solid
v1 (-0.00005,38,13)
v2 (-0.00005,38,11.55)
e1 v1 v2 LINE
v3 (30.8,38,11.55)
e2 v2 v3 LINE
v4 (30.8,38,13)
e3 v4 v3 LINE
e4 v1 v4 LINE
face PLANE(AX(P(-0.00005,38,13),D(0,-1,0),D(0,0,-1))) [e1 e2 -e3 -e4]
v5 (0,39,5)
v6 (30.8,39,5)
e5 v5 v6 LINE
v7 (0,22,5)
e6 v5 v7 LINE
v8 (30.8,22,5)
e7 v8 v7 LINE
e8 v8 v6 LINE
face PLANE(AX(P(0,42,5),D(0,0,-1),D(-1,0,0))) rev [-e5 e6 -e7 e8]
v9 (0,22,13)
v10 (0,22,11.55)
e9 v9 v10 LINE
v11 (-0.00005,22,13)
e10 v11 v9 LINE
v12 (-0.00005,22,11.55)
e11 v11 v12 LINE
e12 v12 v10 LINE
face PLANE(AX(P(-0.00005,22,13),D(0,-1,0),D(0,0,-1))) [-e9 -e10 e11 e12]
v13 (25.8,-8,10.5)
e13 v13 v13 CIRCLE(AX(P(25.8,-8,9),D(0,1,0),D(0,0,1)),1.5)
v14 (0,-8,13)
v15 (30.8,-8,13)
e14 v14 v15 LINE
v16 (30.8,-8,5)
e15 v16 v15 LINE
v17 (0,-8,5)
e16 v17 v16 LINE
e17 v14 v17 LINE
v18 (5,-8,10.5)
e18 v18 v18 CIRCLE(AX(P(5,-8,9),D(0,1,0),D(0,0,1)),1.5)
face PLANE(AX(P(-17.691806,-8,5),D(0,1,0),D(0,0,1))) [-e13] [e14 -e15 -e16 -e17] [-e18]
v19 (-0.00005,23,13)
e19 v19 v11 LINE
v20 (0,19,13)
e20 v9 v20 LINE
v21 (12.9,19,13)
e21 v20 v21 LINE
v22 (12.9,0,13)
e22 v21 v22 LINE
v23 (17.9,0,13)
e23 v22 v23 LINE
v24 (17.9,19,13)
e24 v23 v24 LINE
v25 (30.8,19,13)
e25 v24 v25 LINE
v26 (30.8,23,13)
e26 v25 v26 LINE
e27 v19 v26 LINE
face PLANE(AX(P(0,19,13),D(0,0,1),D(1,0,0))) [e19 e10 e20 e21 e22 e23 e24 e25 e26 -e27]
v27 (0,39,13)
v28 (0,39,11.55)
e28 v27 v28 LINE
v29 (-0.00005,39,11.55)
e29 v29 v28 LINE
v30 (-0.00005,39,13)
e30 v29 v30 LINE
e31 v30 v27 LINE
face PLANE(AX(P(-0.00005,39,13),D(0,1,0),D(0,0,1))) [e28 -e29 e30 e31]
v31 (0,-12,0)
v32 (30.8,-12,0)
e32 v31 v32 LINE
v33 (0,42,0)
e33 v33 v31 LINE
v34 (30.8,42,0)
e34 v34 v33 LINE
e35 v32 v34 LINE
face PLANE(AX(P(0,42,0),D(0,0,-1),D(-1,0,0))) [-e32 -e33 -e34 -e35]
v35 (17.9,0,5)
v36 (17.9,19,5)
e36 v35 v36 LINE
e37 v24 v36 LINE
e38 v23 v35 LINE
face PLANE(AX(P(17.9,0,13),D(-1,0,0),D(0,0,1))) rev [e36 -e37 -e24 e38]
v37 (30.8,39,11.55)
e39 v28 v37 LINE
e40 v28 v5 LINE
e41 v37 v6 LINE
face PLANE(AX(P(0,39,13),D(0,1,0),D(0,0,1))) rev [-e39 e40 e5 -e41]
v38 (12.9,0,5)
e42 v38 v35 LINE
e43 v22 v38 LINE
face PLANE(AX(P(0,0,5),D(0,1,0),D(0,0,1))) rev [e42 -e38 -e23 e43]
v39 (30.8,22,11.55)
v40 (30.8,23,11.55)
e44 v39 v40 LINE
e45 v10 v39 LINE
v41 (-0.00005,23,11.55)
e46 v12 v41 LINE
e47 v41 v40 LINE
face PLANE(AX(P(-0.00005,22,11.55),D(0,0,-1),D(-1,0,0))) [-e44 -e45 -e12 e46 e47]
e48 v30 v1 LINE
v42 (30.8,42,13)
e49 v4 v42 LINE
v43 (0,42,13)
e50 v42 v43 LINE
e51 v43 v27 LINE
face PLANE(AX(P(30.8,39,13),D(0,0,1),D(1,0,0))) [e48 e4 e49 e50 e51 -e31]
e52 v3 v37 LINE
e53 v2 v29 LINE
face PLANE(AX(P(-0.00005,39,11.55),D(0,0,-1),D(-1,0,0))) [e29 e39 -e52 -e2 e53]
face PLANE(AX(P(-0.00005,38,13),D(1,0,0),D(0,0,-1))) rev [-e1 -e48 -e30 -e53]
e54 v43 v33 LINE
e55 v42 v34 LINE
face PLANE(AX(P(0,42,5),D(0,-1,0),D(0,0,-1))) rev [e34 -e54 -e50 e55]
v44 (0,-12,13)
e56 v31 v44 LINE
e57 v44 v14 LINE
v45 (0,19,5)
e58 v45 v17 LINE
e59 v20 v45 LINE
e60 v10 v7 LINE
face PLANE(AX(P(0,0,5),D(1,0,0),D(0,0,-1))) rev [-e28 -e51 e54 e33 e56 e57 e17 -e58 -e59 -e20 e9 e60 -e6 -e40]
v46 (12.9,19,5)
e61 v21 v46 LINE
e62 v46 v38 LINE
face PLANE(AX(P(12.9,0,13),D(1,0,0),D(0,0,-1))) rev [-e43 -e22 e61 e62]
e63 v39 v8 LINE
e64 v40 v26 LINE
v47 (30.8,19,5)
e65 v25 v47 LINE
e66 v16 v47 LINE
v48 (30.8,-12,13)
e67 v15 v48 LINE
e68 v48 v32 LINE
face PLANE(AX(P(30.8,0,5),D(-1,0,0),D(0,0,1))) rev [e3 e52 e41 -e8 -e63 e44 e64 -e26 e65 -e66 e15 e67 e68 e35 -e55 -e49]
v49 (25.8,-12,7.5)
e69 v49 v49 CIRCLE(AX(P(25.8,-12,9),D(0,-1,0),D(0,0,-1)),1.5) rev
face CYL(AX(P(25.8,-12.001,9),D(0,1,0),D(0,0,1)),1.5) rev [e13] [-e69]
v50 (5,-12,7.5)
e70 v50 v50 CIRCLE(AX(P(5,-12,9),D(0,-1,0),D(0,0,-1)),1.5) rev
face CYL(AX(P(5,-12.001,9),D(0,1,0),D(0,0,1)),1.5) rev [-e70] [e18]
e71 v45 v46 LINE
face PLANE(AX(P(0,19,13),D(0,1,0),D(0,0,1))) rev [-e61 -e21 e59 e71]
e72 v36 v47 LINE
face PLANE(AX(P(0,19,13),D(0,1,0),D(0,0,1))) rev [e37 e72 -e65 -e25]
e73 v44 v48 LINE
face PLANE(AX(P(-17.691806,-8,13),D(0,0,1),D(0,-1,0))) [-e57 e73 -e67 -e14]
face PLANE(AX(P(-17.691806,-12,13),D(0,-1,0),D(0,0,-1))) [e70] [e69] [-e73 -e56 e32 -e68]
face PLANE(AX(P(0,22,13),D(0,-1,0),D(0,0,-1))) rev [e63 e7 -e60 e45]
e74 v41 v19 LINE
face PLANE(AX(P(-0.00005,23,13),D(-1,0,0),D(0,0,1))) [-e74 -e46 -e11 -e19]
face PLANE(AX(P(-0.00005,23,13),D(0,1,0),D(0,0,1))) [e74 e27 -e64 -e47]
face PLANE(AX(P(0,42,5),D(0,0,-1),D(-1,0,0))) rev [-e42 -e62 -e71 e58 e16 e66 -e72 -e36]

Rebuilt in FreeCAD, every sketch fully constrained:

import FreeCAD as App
import Part
import Sketcher


def add_polygon(sketch, points):
    """Adds a closed chain of lines whose ends are joined by coincident constraints."""
    first, n = sketch.GeometryCount, len(points)
    for a, b in zip(points, points[1:] + points[:1]):
        sketch.addGeometry(Part.LineSegment(App.Vector(*a, 0), App.Vector(*b, 0)), False)
    for i in range(n):
        sketch.addConstraint(Sketcher.Constraint("Coincident", first + i, 2, first + (i + 1) % n, 1))

doc = App.newDocument("Part")
body = doc.addObject("PartDesign::Body", "Body")

# Sketch on XY plane
sketch1 = body.newObject("Sketcher::SketchObject", "Sketch")
sketch1.AttachmentSupport = (doc.getObject("XY_Plane"), [""])
sketch1.MapMode = "FlatFace"
add_polygon(sketch1, [(0, 42), (0, 0), (31, 0), (31, 42)])  # lines 0-3
sketch1.addConstraint([
    Sketcher.Constraint("Vertical", 0),
    Sketcher.Constraint("Horizontal", 1),
    Sketcher.Constraint("Vertical", 2),
    Sketcher.Constraint("Horizontal", 3),
    Sketcher.Constraint("Coincident", 0, 2, -1, 1),
    Sketcher.Constraint("DistanceY", 0, 2, 0, 1, 42.0),
    Sketcher.Constraint("DistanceX", 1, 1, 1, 2, 30.8),
])
pad1 = body.newObject("PartDesign::Pad", "Pad")
pad1.Profile = sketch1
pad1.Length = 5

# Sketch on XY plane
sketch2 = body.newObject("Sketcher::SketchObject", "Sketch001")
sketch2.AttachmentSupport = (doc.getObject("XY_Plane"), [""])
sketch2.MapMode = "FlatFace"
sketch2.AttachmentOffset = App.Placement(App.Vector(0, 0, 5), App.Rotation())
add_polygon(sketch2, [(0, 42), (0, 39), (30.8, 39), (30.8, 42)])  # lines 0-3
add_polygon(sketch2, [(0, 22), (0, 19), (30.8, 19), (30.8, 22)])  # lines 4-7
sketch2.addConstraint([
    Sketcher.Constraint("Vertical", 0),
    Sketcher.Constraint("Horizontal", 1),
    Sketcher.Constraint("Vertical", 2),
    Sketcher.Constraint("Horizontal", 3),
    Sketcher.Constraint("Vertical", 4),
    Sketcher.Constraint("Horizontal", 5),
    Sketcher.Constraint("Vertical", 6),
    Sketcher.Constraint("Horizontal", 7),
    Sketcher.Constraint("PointOnObject", 0, 2, -2),
    Sketcher.Constraint("PointOnObject", 4, 2, -2),
    Sketcher.Constraint("Vertical", 2, 2, 5, 2),
    Sketcher.Constraint("Equal", 2, 4),
    Sketcher.Constraint("DistanceY", 0, 2, 0, 1, 3.0),
    Sketcher.Constraint("DistanceX", 1, 1, 1, 2, 30.8),
    Sketcher.Constraint("DistanceY", -1, 1, 0, 2, 39.0),
    Sketcher.Constraint("DistanceY", -1, 1, 4, 2, 19.0),
])
pad2 = body.newObject("PartDesign::Pad", "Pad001")
pad2.Profile = sketch2
pad2.Length = 8

# Sketch on XY plane
sketch3 = body.newObject("Sketcher::SketchObject", "Sketch002")
sketch3.AttachmentSupport = (doc.getObject("XY_Plane"), [""])
sketch3.MapMode = "FlatFace"
sketch3.AttachmentOffset = App.Placement(App.Vector(0, 0, 5), App.Rotation())
add_polygon(sketch3, [(12.9, 19), (12.9, 0), (17.9, 0), (17.9, 19)])  # lines 0-3
sketch3.addConstraint([
    Sketcher.Constraint("Vertical", 0),
    Sketcher.Constraint("Horizontal", 1),
    Sketcher.Constraint("Vertical", 2),
    Sketcher.Constraint("Horizontal", 3),
    Sketcher.Constraint("PointOnObject", 0, 2, -1),
    Sketcher.Constraint("DistanceX", 1, 1, 1, 2, 5.0),
    Sketcher.Constraint("DistanceY", 0, 2, 0, 1, 19.0),
    Sketcher.Constraint("DistanceX", -1, 1, 0, 2, 12.9),
])
pad3 = body.newObject("PartDesign::Pad", "Pad002")
pad3.Profile = sketch3
pad3.Length = 8

# Sketch on YZ plane
sketch4 = body.newObject("Sketcher::SketchObject", "Sketch003")
sketch4.AttachmentSupport = (doc.getObject("YZ_Plane"), [""])
sketch4.MapMode = "FlatFace"
sketch4.AttachmentOffset = App.Placement(App.Vector(0, 0, 30.8), App.Rotation())
add_polygon(sketch4, [(0, 5), (-8, 5), (-8, 13), (-12, 13), (-12, 0), (0, 0)])  # lines 0-5
sketch4.addConstraint([
    Sketcher.Constraint("Horizontal", 0),
    Sketcher.Constraint("Vertical", 1),
    Sketcher.Constraint("Horizontal", 2),
    Sketcher.Constraint("Vertical", 3),
    Sketcher.Constraint("Horizontal", 4),
    Sketcher.Constraint("Vertical", 5),
    Sketcher.Constraint("Coincident", 4, 2, -1, 1),
    Sketcher.Constraint("Equal", 0, 1),
    Sketcher.Constraint("DistanceX", 0, 2, 0, 1, 8.0),
    Sketcher.Constraint("DistanceX", 2, 2, 2, 1, 4.0),
    Sketcher.Constraint("DistanceY", 3, 2, 3, 1, 13.0),
])
pad4 = body.newObject("PartDesign::Pad", "Pad003")
pad4.Profile = sketch4
pad4.Length = 30.8
pad4.Reversed = True

# Sketch on XZ plane
sketch5 = body.newObject("Sketcher::SketchObject", "Sketch004")
sketch5.AttachmentSupport = (doc.getObject("XZ_Plane"), [""])
sketch5.MapMode = "FlatFace"
sketch5.AttachmentOffset = App.Placement(App.Vector(0, 0, 8), App.Rotation())
sketch5.addGeometry(Part.Circle(App.Vector(5, 9, 0), App.Vector(0, 0, 1), 1.5), False)
sketch5.addConstraint([
    Sketcher.Constraint("Diameter", 0, 3.0),
    Sketcher.Constraint("DistanceX", -1, 1, 0, 3, 5.0),
    Sketcher.Constraint("DistanceY", -1, 1, 0, 3, 9.0),
])
pocket1 = body.newObject("PartDesign::Pocket", "Pocket")
pocket1.Profile = sketch5
pocket1.Type = "UpToFirst"
pocket1.Reversed = True

# Sketch on XZ plane
sketch6 = body.newObject("Sketcher::SketchObject", "Sketch005")
sketch6.AttachmentSupport = (doc.getObject("XZ_Plane"), [""])
sketch6.MapMode = "FlatFace"
sketch6.AttachmentOffset = App.Placement(App.Vector(0, 0, 8), App.Rotation())
sketch6.addGeometry(Part.Circle(App.Vector(25.8, 9, 0), App.Vector(0, 0, 1), 1.5), False)
sketch6.addConstraint([
    Sketcher.Constraint("Diameter", 0, 3.0),
    Sketcher.Constraint("DistanceY", -1, 1, 0, 3, 9.0),
    Sketcher.Constraint("DistanceX", -1, 1, 0, 3, 25.8),
])
pocket2 = body.newObject("PartDesign::Pocket", "Pocket001")
pocket2.Profile = sketch6
pocket2.Type = "UpToFirst"
pocket2.Reversed = True

# Sketch on YZ plane
sketch7 = body.newObject("Sketcher::SketchObject", "Sketch006")
sketch7.AttachmentSupport = (doc.getObject("YZ_Plane"), [""])
sketch7.MapMode = "FlatFace"
sketch7.AttachmentOffset = App.Placement(App.Vector(0, 0, 30.8), App.Rotation())
add_polygon(sketch7, [(39, 13), (38, 13), (38, 11.6), (39, 11.6)])  # lines 0-3
add_polygon(sketch7, [(23, 13), (22, 13), (22, 11.6), (23, 11.6)])  # lines 4-7
sketch7.addConstraint([
    Sketcher.Constraint("Horizontal", 0),
    Sketcher.Constraint("Vertical", 1),
    Sketcher.Constraint("Horizontal", 2),
    Sketcher.Constraint("Vertical", 3),
    Sketcher.Constraint("Horizontal", 4),
    Sketcher.Constraint("Vertical", 5),
    Sketcher.Constraint("Horizontal", 6),
    Sketcher.Constraint("Vertical", 7),
    Sketcher.Constraint("Horizontal", 3, 2, 4, 2),
    Sketcher.Constraint("Horizontal", 2, 2, 5, 2),
    Sketcher.Constraint("Equal", 2, 4),
    Sketcher.Constraint("DistanceX", 0, 2, 0, 1, 1.0),
    Sketcher.Constraint("DistanceX", -1, 1, 0, 2, 38.0),
    Sketcher.Constraint("DistanceY", -1, 1, 0, 2, 13.0),
    Sketcher.Constraint("DistanceX", -1, 1, 4, 2, 22.0),
    Sketcher.Constraint("DistanceY", 1, 2, 1, 1, 1.45),
])
pad5 = body.newObject("PartDesign::Pad", "Pad004")
pad5.Profile = sketch7
pad5.Length = 30.8
pad5.Reversed = True

doc.recompute()
